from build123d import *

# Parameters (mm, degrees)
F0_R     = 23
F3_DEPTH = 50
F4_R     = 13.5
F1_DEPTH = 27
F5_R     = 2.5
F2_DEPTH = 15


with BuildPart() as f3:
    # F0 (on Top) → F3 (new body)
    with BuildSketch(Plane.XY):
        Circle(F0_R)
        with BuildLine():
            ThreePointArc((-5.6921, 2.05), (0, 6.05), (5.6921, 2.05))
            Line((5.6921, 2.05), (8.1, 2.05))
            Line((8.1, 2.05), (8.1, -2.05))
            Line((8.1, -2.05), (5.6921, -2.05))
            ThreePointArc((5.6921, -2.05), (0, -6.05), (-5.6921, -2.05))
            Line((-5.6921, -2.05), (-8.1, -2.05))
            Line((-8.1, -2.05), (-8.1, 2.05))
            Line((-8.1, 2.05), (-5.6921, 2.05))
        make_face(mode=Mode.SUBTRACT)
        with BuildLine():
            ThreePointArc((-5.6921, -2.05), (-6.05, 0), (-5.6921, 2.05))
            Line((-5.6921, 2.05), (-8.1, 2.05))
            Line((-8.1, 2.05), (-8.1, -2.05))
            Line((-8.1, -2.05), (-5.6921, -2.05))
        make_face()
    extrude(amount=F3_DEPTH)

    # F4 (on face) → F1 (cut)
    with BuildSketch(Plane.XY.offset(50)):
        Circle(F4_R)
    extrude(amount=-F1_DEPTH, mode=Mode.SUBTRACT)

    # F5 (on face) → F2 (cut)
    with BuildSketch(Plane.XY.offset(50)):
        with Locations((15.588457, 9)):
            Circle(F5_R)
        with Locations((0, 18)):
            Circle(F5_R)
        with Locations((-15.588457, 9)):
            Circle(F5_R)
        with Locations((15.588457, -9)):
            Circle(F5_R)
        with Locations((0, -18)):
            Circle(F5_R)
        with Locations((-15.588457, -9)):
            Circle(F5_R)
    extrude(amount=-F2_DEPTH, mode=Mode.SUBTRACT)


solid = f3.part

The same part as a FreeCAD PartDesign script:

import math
import FreeCAD as App
import Part
import Sketcher
Q = App.Units.Quantity

doc = App.newDocument("Part")
body = doc.addObject("PartDesign::Body", "Body")

# Sketch on XY plane
sketch1 = body.newObject("Sketcher::SketchObject", "Sketch")
sketch1.AttachmentSupport = (doc.getObject("XY_Plane"), [""])
sketch1.MapMode = "FlatFace"
sketch1.addGeometry([
    Part.Circle(App.Vector(0, 0, 0), App.Vector(0, 0, 1), 23),  # 0
    Part.ArcOfCircle(Part.Circle(App.Vector(0, 0, 0), App.Vector(0, 0, 1), 6.05), math.radians(-160.1936), math.radians(-19.8064)),  # 1
    Part.ArcOfCircle(Part.Circle(App.Vector(0.000003, 0, 0), App.Vector(0, 0, 1), 6.050003), math.radians(160.193614), math.radians(199.806386)),  # 2
    Part.ArcOfCircle(Part.Circle(App.Vector(0, 0, 0), App.Vector(0, 0, 1), 6.05), math.radians(19.8064), math.radians(160.1936)),  # 3
    Part.LineSegment(App.Vector(5.6921, 2.05, 0), App.Vector(8.1, 2.05, 0)),  # 4
    Part.LineSegment(App.Vector(8.1, 2.05, 0), App.Vector(8.1, -2.05, 0)),  # 5
    Part.LineSegment(App.Vector(8.1, -2.05, 0), App.Vector(5.6921, -2.05, 0)),  # 6
], False)
sketch1.addConstraint([
    Sketcher.Constraint("Tangent", 1, 1, 2, 2),
    Sketcher.Constraint("Tangent", 2, 1, 3, 2),
    Sketcher.Constraint("Coincident", 3, 1, 4, 1),
    Sketcher.Constraint("Coincident", 4, 2, 5, 1),
    Sketcher.Constraint("Coincident", 5, 2, 6, 1),
    Sketcher.Constraint("Coincident", 6, 2, 1, 2),
    Sketcher.Constraint("Horizontal", 4),
    Sketcher.Constraint("Vertical", 5),
    Sketcher.Constraint("Horizontal", 6),
    Sketcher.Constraint("Coincident", 0, 3, -1, 1),
    Sketcher.Constraint("Coincident", 1, 3, -1, 1),
    Sketcher.Constraint("Coincident", 3, 3, -1, 1),
    Sketcher.Constraint("Horizontal", 2, 1, 3, 1),
    Sketcher.Constraint("Horizontal", 1, 1, 5, 2),
    Sketcher.Constraint("Vertical", 1, 1, 2, 1),
    Sketcher.Constraint("Diameter", 0, Q("46 mm")),
    Sketcher.Constraint("Radius", 1, Q("6.05 mm")),
    Sketcher.Constraint("DistanceY", 5, 2, 5, 1, Q("4.1 mm")),
    Sketcher.Constraint("DistanceX", -1, 1, 4, 2, Q("8.1 mm")),
])
pad1 = body.newObject("PartDesign::Pad", "Pad")
pad1.Profile = sketch1
pad1.Length = 50

# Sketch on XY plane
sketch2 = body.newObject("Sketcher::SketchObject", "Sketch001")
sketch2.AttachmentSupport = (doc.getObject("XY_Plane"), [""])
sketch2.MapMode = "FlatFace"
sketch2.AttachmentOffset = App.Placement(App.Vector(0, 0, 50), App.Rotation())
sketch2.addGeometry(Part.Circle(App.Vector(0, 0, 0), App.Vector(0, 0, 1), 13.5), False)
sketch2.addConstraint([
    Sketcher.Constraint("Coincident", 0, 3, -1, 1),
    Sketcher.Constraint("Diameter", 0, Q("27 mm")),
])
pocket1 = body.newObject("PartDesign::Pocket", "Pocket")
pocket1.Profile = sketch2
pocket1.Length = 27

# Sketch on XY plane
sketch3 = body.newObject("Sketcher::SketchObject", "Sketch002")
sketch3.AttachmentSupport = (doc.getObject("XY_Plane"), [""])
sketch3.MapMode = "FlatFace"
sketch3.AttachmentOffset = App.Placement(App.Vector(0, 0, 50), App.Rotation())
sketch3.addGeometry([
    Part.Circle(App.Vector(15.588457, 9, 0), App.Vector(0, 0, 1), 2.5),  # 0
    Part.Circle(App.Vector(0, 18, 0), App.Vector(0, 0, 1), 2.5),  # 1
    Part.Circle(App.Vector(-15.588457, 9, 0), App.Vector(0, 0, 1), 2.5),  # 2
    Part.Circle(App.Vector(15.588457, -9, 0), App.Vector(0, 0, 1), 2.5),  # 3
    Part.Circle(App.Vector(0, -18, 0), App.Vector(0, 0, 1), 2.5),  # 4
    Part.Circle(App.Vector(-15.588457, -9, 0), App.Vector(0, 0, 1), 2.5),  # 5
], False)
sketch3.addConstraint([
    Sketcher.Constraint("Equal", 0, 1),
    Sketcher.Constraint("Equal", 1, 2),
    Sketcher.Constraint("Equal", 2, 3),
    Sketcher.Constraint("Equal", 3, 4),
    Sketcher.Constraint("Equal", 4, 5),
    Sketcher.Constraint("Symmetric", 2, 3, 3, 3, -1, 1),
    Sketcher.Constraint("Symmetric", 1, 3, 4, 3, -1, 1),
    Sketcher.Constraint("Symmetric", 0, 3, 5, 3, -1, 1),
    Sketcher.Constraint("Symmetric", 0, 3, 2, 3, -2),
    Sketcher.Constraint("PointOnObject", 1, 3, -2),
    Sketcher.Constraint("Diameter", 0, Q("5 mm")),
    Sketcher.Constraint("DistanceY", -1, 1, 0, 3, Q("9 mm")),
    Sketcher.Constraint("DistanceY", -1, 1, 1, 3, Q("18 mm")),
    Sketcher.Constraint("DistanceX", -1, 1, 0, 3, Q("15.588457 mm")),
])
pocket2 = body.newObject("PartDesign::Pocket", "Pocket001")
pocket2.Profile = sketch3
pocket2.Length = 15

doc.recompute()
